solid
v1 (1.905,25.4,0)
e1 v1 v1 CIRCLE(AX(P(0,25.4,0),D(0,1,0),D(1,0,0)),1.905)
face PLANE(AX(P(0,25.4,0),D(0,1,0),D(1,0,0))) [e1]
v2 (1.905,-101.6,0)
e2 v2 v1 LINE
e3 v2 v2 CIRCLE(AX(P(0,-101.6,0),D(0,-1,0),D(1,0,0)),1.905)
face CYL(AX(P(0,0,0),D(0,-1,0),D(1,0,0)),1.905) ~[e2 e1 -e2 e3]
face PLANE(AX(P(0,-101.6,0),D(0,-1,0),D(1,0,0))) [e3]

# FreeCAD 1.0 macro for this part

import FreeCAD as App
import Part
import Sketcher

V = App.Vector
Q = App.Units.Quantity

doc = App.newDocument("Part")
body = doc.addObject("PartDesign::Body", "Body")

# Sketch on XZ plane
sketch1 = body.newObject("Sketcher::SketchObject", "Sketch")
sketch1.AttachmentSupport = (doc.getObject("XZ_Plane"), [""])
sketch1.MapMode = "FlatFace"
sketch1.addGeometry(Part.Circle(V(0, 0, 0), V(0, 0, 1), 1.9), False)
sketch1.addConstraint([
    Sketcher.Constraint("Coincident", 0, 3, -1, 1),
    Sketcher.Constraint("Diameter", 0, Q("0.15 in")),
])
pad1 = body.newObject("PartDesign::Pad", "Pad")
pad1.Profile = sketch1
pad1.Length = Q("4 in")

# Sketch on XZ plane
sketch2 = body.newObject("Sketcher::SketchObject", "Sketch001")
sketch2.AttachmentSupport = (doc.getObject("XZ_Plane"), [""])
sketch2.MapMode = "FlatFace"
sketch2.addGeometry(Part.Circle(V(0, 0, 0), V(0, 0, 1), 1.9), False)
sketch2.addConstraint([
    Sketcher.Constraint("Coincident", 0, 3, -1, 1),
    Sketcher.Constraint("Diameter", 0, Q("0.15 in")),
])
pad2 = body.newObject("PartDesign::Pad", "Pad001")
pad2.Profile = sketch2
pad2.Length = Q("1 in")
pad2.Reversed = True

doc.recompute()
